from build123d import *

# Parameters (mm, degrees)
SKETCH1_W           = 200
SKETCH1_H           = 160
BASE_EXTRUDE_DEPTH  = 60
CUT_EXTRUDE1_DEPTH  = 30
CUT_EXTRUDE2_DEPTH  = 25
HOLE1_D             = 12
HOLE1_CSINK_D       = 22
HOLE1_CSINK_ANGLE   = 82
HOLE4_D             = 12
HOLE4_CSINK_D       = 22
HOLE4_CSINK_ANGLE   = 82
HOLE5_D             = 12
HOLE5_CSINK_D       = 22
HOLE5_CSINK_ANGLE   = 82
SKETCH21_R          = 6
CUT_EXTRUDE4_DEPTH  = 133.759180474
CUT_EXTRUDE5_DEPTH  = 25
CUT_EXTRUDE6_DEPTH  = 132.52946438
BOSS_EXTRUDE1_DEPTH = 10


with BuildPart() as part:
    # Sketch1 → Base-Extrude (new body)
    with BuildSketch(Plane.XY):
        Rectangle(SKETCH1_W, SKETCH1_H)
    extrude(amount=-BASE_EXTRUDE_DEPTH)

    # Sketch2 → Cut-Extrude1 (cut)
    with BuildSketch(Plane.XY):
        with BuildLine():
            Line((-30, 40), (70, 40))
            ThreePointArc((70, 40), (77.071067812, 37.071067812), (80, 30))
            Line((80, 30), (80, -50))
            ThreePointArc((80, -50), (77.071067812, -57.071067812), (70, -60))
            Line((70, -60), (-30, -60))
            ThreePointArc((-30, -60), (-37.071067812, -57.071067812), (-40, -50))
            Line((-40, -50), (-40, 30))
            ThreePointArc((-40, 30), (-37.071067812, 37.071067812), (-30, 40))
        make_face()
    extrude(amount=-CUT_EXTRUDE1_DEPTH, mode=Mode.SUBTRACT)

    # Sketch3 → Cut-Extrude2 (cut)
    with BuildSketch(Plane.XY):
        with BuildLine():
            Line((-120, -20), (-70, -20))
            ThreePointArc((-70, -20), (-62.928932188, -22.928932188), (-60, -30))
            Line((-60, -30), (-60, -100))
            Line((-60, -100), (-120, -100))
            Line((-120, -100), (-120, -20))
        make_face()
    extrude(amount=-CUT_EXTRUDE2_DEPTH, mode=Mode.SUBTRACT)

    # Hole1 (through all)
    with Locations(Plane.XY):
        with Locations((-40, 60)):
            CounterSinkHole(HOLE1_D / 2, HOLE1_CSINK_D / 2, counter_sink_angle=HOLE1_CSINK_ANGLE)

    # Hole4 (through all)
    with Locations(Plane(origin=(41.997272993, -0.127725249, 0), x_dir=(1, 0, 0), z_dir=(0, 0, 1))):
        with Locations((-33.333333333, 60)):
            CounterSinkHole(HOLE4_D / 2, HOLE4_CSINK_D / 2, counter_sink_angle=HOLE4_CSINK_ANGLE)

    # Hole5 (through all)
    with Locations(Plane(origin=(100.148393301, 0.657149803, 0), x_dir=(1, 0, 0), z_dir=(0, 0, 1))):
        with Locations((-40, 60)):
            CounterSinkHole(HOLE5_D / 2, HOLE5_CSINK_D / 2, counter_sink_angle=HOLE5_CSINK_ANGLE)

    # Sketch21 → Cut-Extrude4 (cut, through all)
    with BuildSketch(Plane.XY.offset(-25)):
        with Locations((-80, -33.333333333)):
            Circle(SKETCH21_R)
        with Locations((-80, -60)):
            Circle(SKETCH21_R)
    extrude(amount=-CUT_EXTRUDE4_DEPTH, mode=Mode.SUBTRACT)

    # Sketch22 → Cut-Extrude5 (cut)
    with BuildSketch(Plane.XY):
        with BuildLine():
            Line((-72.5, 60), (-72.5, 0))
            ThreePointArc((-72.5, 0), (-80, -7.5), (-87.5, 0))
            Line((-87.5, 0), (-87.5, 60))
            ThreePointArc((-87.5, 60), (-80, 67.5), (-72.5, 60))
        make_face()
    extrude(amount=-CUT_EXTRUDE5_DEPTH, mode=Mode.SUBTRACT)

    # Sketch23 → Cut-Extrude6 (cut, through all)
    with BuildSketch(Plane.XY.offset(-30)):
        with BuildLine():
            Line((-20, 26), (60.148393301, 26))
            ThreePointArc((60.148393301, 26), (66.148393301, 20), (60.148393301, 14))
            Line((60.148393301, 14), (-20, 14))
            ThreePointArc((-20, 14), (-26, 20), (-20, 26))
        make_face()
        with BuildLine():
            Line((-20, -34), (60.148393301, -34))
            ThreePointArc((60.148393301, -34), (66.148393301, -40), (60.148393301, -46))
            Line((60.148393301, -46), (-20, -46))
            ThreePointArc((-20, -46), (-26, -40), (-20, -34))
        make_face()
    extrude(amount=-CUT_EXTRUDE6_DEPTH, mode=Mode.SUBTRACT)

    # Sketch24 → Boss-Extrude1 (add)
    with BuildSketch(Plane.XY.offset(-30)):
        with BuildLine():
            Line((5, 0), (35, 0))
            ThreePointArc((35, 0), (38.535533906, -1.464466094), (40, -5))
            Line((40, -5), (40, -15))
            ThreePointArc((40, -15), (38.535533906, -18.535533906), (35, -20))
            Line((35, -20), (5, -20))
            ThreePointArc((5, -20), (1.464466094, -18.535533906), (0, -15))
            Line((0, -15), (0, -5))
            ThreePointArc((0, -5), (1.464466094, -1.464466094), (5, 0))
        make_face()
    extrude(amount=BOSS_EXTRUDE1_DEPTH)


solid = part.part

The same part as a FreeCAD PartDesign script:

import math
import FreeCAD as App
import Part
import Sketcher

doc = App.newDocument("Part")
body = doc.addObject("PartDesign::Body", "Body")

# Sketch on XY plane
sketch1 = doc.addObject("Sketcher::SketchObject", "Sketch")
body.addObject(sketch1)
sketch1.AttachmentSupport = (doc.XY_Plane, [""])
sketch1.MapMode = "FlatFace"
sketch1.addGeometry([
    Part.LineSegment(App.Vector(-100, 80, 0), App.Vector(-100, -80, 0)),
    Part.LineSegment(App.Vector(-100, -80, 0), App.Vector(100, -80, 0)),
    Part.LineSegment(App.Vector(100, -80, 0), App.Vector(100, 80, 0)),
    Part.LineSegment(App.Vector(100, 80, 0), App.Vector(-100, 80, 0)),
], False)
sketch1.addConstraint([
    Sketcher.Constraint("Coincident", 0, 2, 1, 1),
    Sketcher.Constraint("Coincident", 1, 2, 2, 1),
    Sketcher.Constraint("Coincident", 2, 2, 3, 1),
    Sketcher.Constraint("Coincident", 3, 2, 0, 1),
    Sketcher.Constraint("Vertical", 0),
    Sketcher.Constraint("Horizontal", 1),
    Sketcher.Constraint("Vertical", 2),
    Sketcher.Constraint("Horizontal", 3),
    Sketcher.Constraint("Symmetric", 0, 2, 2, 2, -1, 1),
    Sketcher.Constraint("DistanceX", 1, 1, 1, 2, 200.0),
    Sketcher.Constraint("DistanceY", 0, 2, 0, 1, 160.0),
])
pad1 = doc.addObject("PartDesign::Pad", "Pad")
body.addObject(pad1)
pad1.Profile = sketch1
pad1.Length = 60
pad1.Reversed = True

# Sketch on XY plane
sketch2 = doc.addObject("Sketcher::SketchObject", "Sketch001")
body.addObject(sketch2)
sketch2.AttachmentSupport = (doc.XY_Plane, [""])
sketch2.MapMode = "FlatFace"
sketch2.addGeometry([
    Part.LineSegment(App.Vector(70, 40, 0), App.Vector(-30, 40, 0)),  # 0
    Part.ArcOfCircle(Part.Circle(App.Vector(-30, 30, 0), App.Vector(0, 0, 1), 10), math.radians(90), math.radians(180)),  # 1
    Part.LineSegment(App.Vector(-40, 30, 0), App.Vector(-40, -50, 0)),  # 2
    Part.ArcOfCircle(Part.Circle(App.Vector(-30, -50, 0), App.Vector(0, 0, 1), 10), math.radians(180), math.radians(270)),  # 3
    Part.LineSegment(App.Vector(-30, -60, 0), App.Vector(70, -60, 0)),  # 4
    Part.ArcOfCircle(Part.Circle(App.Vector(70, -50, 0), App.Vector(0, 0, 1), 10), math.radians(-90), math.radians(0)),  # 5
    Part.LineSegment(App.Vector(80, -50, 0), App.Vector(80, 30, 0)),  # 6
    Part.ArcOfCircle(Part.Circle(App.Vector(70, 30, 0), App.Vector(0, 0, 1), 10), math.radians(0), math.radians(90)),  # 7
], False)
sketch2.addConstraint([
    Sketcher.Constraint("Tangent", 0, 2, 1, 1),
    Sketcher.Constraint("Tangent", 1, 2, 2, 1),
    Sketcher.Constraint("Tangent", 2, 2, 3, 1),
    Sketcher.Constraint("Tangent", 3, 2, 4, 1),
    Sketcher.Constraint("Tangent", 4, 2, 5, 1),
    Sketcher.Constraint("Tangent", 5, 2, 6, 1),
    Sketcher.Constraint("Tangent", 6, 2, 7, 1),
    Sketcher.Constraint("Tangent", 7, 2, 0, 1),
    Sketcher.Constraint("Horizontal", 0),
    Sketcher.Constraint("Vertical", 2),
    Sketcher.Constraint("Horizontal", 4),
    Sketcher.Constraint("Vertical", 6),
    Sketcher.Constraint("Equal", 1, 3),
    Sketcher.Constraint("Equal", 3, 5),
    Sketcher.Constraint("Equal", 5, 7),
    Sketcher.Constraint("Radius", 1, 10.0),
    Sketcher.Constraint("DistanceX", 0, 2, 0, 1, 100.0),
    Sketcher.Constraint("DistanceY", 2, 2, 2, 1, 80.0),
    Sketcher.Constraint("DistanceX", 1, 3, -1, 1, 30.0),
    Sketcher.Constraint("DistanceY", -1, 1, 1, 3, 30.0),
])
pocket1 = doc.addObject("PartDesign::Pocket", "Pocket")
body.addObject(pocket1)
pocket1.Profile = sketch2
pocket1.Length = 30

# Sketch on XY plane
sketch3 = doc.addObject("Sketcher::SketchObject", "Sketch002")
body.addObject(sketch3)
sketch3.AttachmentSupport = (doc.XY_Plane, [""])
sketch3.MapMode = "FlatFace"
sketch3.addGeometry([
    Part.LineSegment(App.Vector(-70, -20, 0), App.Vector(-120, -20, 0)),  # 0
    Part.LineSegment(App.Vector(-120, -20, 0), App.Vector(-120, -100, 0)),  # 1
    Part.LineSegment(App.Vector(-120, -100, 0), App.Vector(-60, -100, 0)),  # 2
    Part.LineSegment(App.Vector(-60, -100, 0), App.Vector(-60, -30, 0)),  # 3
    Part.ArcOfCircle(Part.Circle(App.Vector(-70, -30, 0), App.Vector(0, 0, 1), 10), math.radians(0), math.radians(90)),  # 4
], False)
sketch3.addConstraint([
    Sketcher.Constraint("Coincident", 0, 2, 1, 1),
    Sketcher.Constraint("Coincident", 1, 2, 2, 1),
    Sketcher.Constraint("Coincident", 2, 2, 3, 1),
    Sketcher.Constraint("Tangent", 3, 2, 4, 1),
    Sketcher.Constraint("Tangent", 4, 2, 0, 1),
    Sketcher.Constraint("Horizontal", 0),
    Sketcher.Constraint("Vertical", 1),
    Sketcher.Constraint("Horizontal", 2),
    Sketcher.Constraint("Vertical", 3),
    Sketcher.Constraint("Radius", 4, 10.0),
    Sketcher.Constraint("DistanceX", 0, 2, 0, 1, 50.0),
    Sketcher.Constraint("DistanceY", 1, 2, 1, 1, 80.0),
    Sketcher.Constraint("DistanceX", 4, 3, -1, 1, 70.0),
    Sketcher.Constraint("DistanceY", 4, 3, -1, 1, 30.0),
])
pocket2 = doc.addObject("PartDesign::Pocket", "Pocket001")
body.addObject(pocket2)
pocket2.Profile = sketch3
pocket2.Length = 25

# Sketch on XY plane
sketch4 = doc.addObject("Sketcher::SketchObject", "Sketch003")
body.addObject(sketch4)
sketch4.AttachmentSupport = (doc.XY_Plane, [""])
sketch4.MapMode = "FlatFace"
sketch4.addGeometry(Part.Circle(App.Vector(-40, 60, 0), App.Vector(0, 0, 1), 6), False)
sketch4.addConstraint([
    Sketcher.Constraint("Diameter", 0, 12.0),
    Sketcher.Constraint("DistanceX", 0, 3, -1, 1, 40.0),
    Sketcher.Constraint("DistanceY", -1, 1, 0, 3, 60.0),
])
doc.recompute()
hole = doc.addObject("PartDesign::Hole", "Hole")
body.addObject(hole)
hole.Profile = sketch4
hole.ThreadType = "None"
hole.Diameter = 12
hole.DepthType = "ThroughAll"
hole.HoleCutType = "Countersink"
hole.HoleCutDiameter = 22
hole.HoleCutCountersinkAngle = 82

# Sketch on XY plane
sketch5 = doc.addObject("Sketcher::SketchObject", "Sketch004")
body.addObject(sketch5)
sketch5.AttachmentSupport = (doc.XY_Plane, [""])
sketch5.MapMode = "FlatFace"
sketch5.addGeometry(Part.Circle(App.Vector(8.66394, 59.872275, 0), App.Vector(0, 0, 1), 6), False)
sketch5.addConstraint([
    Sketcher.Constraint("Diameter", 0, 12.0),
    Sketcher.Constraint("DistanceX", -1, 1, 0, 3, 8.66394),
    Sketcher.Constraint("DistanceY", -1, 1, 0, 3, 59.872275),
])
doc.recompute()
hole2 = doc.addObject("PartDesign::Hole", "Hole001")
body.addObject(hole2)
hole2.Profile = sketch5
hole2.ThreadType = "None"
hole2.Diameter = 12
hole2.DepthType = "ThroughAll"
hole2.HoleCutType = "Countersink"
hole2.HoleCutDiameter = 22
hole2.HoleCutCountersinkAngle = 82

# Sketch on XY plane
sketch6 = doc.addObject("Sketcher::SketchObject", "Sketch005")
body.addObject(sketch6)
sketch6.AttachmentSupport = (doc.XY_Plane, [""])
sketch6.MapMode = "FlatFace"
sketch6.addGeometry(Part.Circle(App.Vector(60.148393, 60.65715, 0), App.Vector(0, 0, 1), 6), False)
sketch6.addConstraint([
    Sketcher.Constraint("Diameter", 0, 12.0),
    Sketcher.Constraint("DistanceY", -1, 1, 0, 3, 60.65715),
    Sketcher.Constraint("DistanceX", -1, 1, 0, 3, 60.148393),
])
doc.recompute()
hole3 = doc.addObject("PartDesign::Hole", "Hole002")
body.addObject(hole3)
hole3.Profile = sketch6
hole3.ThreadType = "None"
hole3.Diameter = 12
hole3.DepthType = "ThroughAll"
hole3.HoleCutType = "Countersink"
hole3.HoleCutDiameter = 22
hole3.HoleCutCountersinkAngle = 82

# Sketch on XY plane
sketch7 = doc.addObject("Sketcher::SketchObject", "Sketch006")
body.addObject(sketch7)
sketch7.AttachmentSupport = (doc.XY_Plane, [""])
sketch7.MapMode = "FlatFace"
sketch7.AttachmentOffset = App.Placement(App.Vector(0, 0, -25), App.Rotation())
sketch7.addGeometry([
    Part.Circle(App.Vector(-80, -33.333333, 0), App.Vector(0, 0, 1), 6),
    Part.Circle(App.Vector(-80, -60, 0), App.Vector(0, 0, 1), 6),
], False)
sketch7.addConstraint([
    Sketcher.Constraint("Equal", 0, 1),
    Sketcher.Constraint("Vertical", 0, 3, 1, 3),
    Sketcher.Constraint("Diameter", 0, 12.0),
    Sketcher.Constraint("DistanceX", 0, 3, -1, 1, 80.0),
    Sketcher.Constraint("DistanceY", 1, 3, -1, 1, 60.0),
    Sketcher.Constraint("DistanceY", 0, 3, -1, 1, 33.333333),
])
pocket3 = doc.addObject("PartDesign::Pocket", "Pocket002")
body.addObject(pocket3)
pocket3.Profile = sketch7
pocket3.Type = "ThroughAll"

# Sketch on XY plane
sketch8 = doc.addObject("Sketcher::SketchObject", "Sketch007")
body.addObject(sketch8)
sketch8.AttachmentSupport = (doc.XY_Plane, [""])
sketch8.MapMode = "FlatFace"
sketch8.addGeometry([
    Part.LineSegment(App.Vector(-72.5, 0, 0), App.Vector(-72.5, 60, 0)),
    Part.ArcOfCircle(Part.Circle(App.Vector(-80, 60, 0), App.Vector(0, 0, 1), 7.5), math.radians(0), math.radians(180)),
    Part.LineSegment(App.Vector(-87.5, 60, 0), App.Vector(-87.5, 0, 0)),
    Part.ArcOfCircle(Part.Circle(App.Vector(-80, 0, 0), App.Vector(0, 0, 1), 7.5), math.radians(180), math.radians(360)),
], False)
sketch8.addConstraint([
    Sketcher.Constraint("Tangent", 0, 2, 1, 1),
    Sketcher.Constraint("Tangent", 1, 2, 2, 1),
    Sketcher.Constraint("Tangent", 2, 2, 3, 1),
    Sketcher.Constraint("Tangent", 3, 2, 0, 1),
    Sketcher.Constraint("Vertical", 0),
    Sketcher.Constraint("Vertical", 2),
    Sketcher.Constraint("PointOnObject", 3, 3, -1),
    Sketcher.Constraint("Radius", 1, 7.5),
    Sketcher.Constraint("DistanceY", 0, 1, 0, 2, 60.0),
    Sketcher.Constraint("DistanceX", 1, 3, -1, 1, 80.0),
])
pocket4 = doc.addObject("PartDesign::Pocket", "Pocket003")
body.addObject(pocket4)
pocket4.Profile = sketch8
pocket4.Length = 25

# Sketch on XY plane
sketch9 = doc.addObject("Sketcher::SketchObject", "Sketch008")
body.addObject(sketch9)
sketch9.AttachmentSupport = (doc.XY_Plane, [""])
sketch9.MapMode = "FlatFace"
sketch9.AttachmentOffset = App.Placement(App.Vector(0, 0, -30), App.Rotation())
sketch9.addGeometry([
    Part.LineSegment(App.Vector(60.148393, 26, 0), App.Vector(-20, 26, 0)),  # 0
    Part.ArcOfCircle(Part.Circle(App.Vector(-20, 20, 0), App.Vector(0, 0, 1), 6), math.radians(90), math.radians(270)),  # 1
    Part.LineSegment(App.Vector(-20, 14, 0), App.Vector(60.148393, 14, 0)),  # 2
    Part.ArcOfCircle(Part.Circle(App.Vector(60.148393, 20, 0), App.Vector(0, 0, 1), 6), math.radians(-90), math.radians(90)),  # 3
    Part.LineSegment(App.Vector(60.148393, -34, 0), App.Vector(-20, -34, 0)),  # 4
    Part.ArcOfCircle(Part.Circle(App.Vector(-20, -40, 0), App.Vector(0, 0, 1), 6), math.radians(90), math.radians(270)),  # 5
    Part.LineSegment(App.Vector(-20, -46, 0), App.Vector(60.148393, -46, 0)),  # 6
    Part.ArcOfCircle(Part.Circle(App.Vector(60.148393, -40, 0), App.Vector(0, 0, 1), 6), math.radians(-90), math.radians(90)),  # 7
], False)
sketch9.addConstraint([
    Sketcher.Constraint("Tangent", 0, 2, 1, 1),
    Sketcher.Constraint("Tangent", 1, 2, 2, 1),
    Sketcher.Constraint("Tangent", 2, 2, 3, 1),
    Sketcher.Constraint("Tangent", 3, 2, 0, 1),
    Sketcher.Constraint("Tangent", 4, 2, 5, 1),
    Sketcher.Constraint("Tangent", 5, 2, 6, 1),
    Sketcher.Constraint("Tangent", 6, 2, 7, 1),
    Sketcher.Constraint("Tangent", 7, 2, 4, 1),
    Sketcher.Constraint("Horizontal", 0),
    Sketcher.Constraint("Horizontal", 2),
    Sketcher.Constraint("Horizontal", 4),
    Sketcher.Constraint("Horizontal", 6),
    Sketcher.Constraint("Equal", 3, 5),
    Sketcher.Constraint("Vertical", 1, 3, 5, 3),
    Sketcher.Constraint("Vertical", 3, 3, 7, 3),
    Sketcher.Constraint("Radius", 1, 6.0),
    Sketcher.Constraint("DistanceX", 1, 3, -1, 1, 20.0),
    Sketcher.Constraint("DistanceY", -1, 1, 1, 3, 20.0),
    Sketcher.Constraint("DistanceY", 5, 3, -1, 1, 40.0),
    Sketcher.Constraint("DistanceX", 0, 2, 0, 1, 80.148393),
])
pocket5 = doc.addObject("PartDesign::Pocket", "Pocket004")
body.addObject(pocket5)
pocket5.Profile = sketch9
pocket5.Type = "ThroughAll"

# Sketch on XY plane
sketch10 = doc.addObject("Sketcher::SketchObject", "Sketch009")
body.addObject(sketch10)
sketch10.AttachmentSupport = (doc.XY_Plane, [""])
sketch10.MapMode = "FlatFace"
sketch10.AttachmentOffset = App.Placement(App.Vector(0, 0, -30), App.Rotation())
sketch10.addGeometry([
    Part.LineSegment(App.Vector(35, 0, 0), App.Vector(5, 0, 0)),  # 0
    Part.ArcOfCircle(Part.Circle(App.Vector(5, -5, 0), App.Vector(0, 0, 1), 5), math.radians(90), math.radians(180)),  # 1
    Part.LineSegment(App.Vector(0, -5, 0), App.Vector(0, -15, 0)),  # 2
    Part.ArcOfCircle(Part.Circle(App.Vector(5, -15, 0), App.Vector(0, 0, 1), 5), math.radians(180), math.radians(270)),  # 3
    Part.LineSegment(App.Vector(5, -20, 0), App.Vector(35, -20, 0)),  # 4
    Part.ArcOfCircle(Part.Circle(App.Vector(35, -15, 0), App.Vector(0, 0, 1), 5), math.radians(-90), math.radians(0)),  # 5
    Part.LineSegment(App.Vector(40, -15, 0), App.Vector(40, -5, 0)),  # 6
    Part.ArcOfCircle(Part.Circle(App.Vector(35, -5, 0), App.Vector(0, 0, 1), 5), math.radians(0), math.radians(90)),  # 7
], False)
sketch10.addConstraint([
    Sketcher.Constraint("Tangent", 0, 2, 1, 1),
    Sketcher.Constraint("Tangent", 1, 2, 2, 1),
    Sketcher.Constraint("Tangent", 2, 2, 3, 1),
    Sketcher.Constraint("Tangent", 3, 2, 4, 1),
    Sketcher.Constraint("Tangent", 4, 2, 5, 1),
    Sketcher.Constraint("Tangent", 5, 2, 6, 1),
    Sketcher.Constraint("Tangent", 6, 2, 7, 1),
    Sketcher.Constraint("Tangent", 7, 2, 0, 1),
    Sketcher.Constraint("Horizontal", 0),
    Sketcher.Constraint("Vertical", 2),
    Sketcher.Constraint("Horizontal", 4),
    Sketcher.Constraint("Vertical", 6),
    Sketcher.Constraint("Equal", 1, 3),
    Sketcher.Constraint("Equal", 3, 5),
    Sketcher.Constraint("Equal", 5, 7),
    Sketcher.Constraint("PointOnObject", 0, 2, -1),
    Sketcher.Constraint("PointOnObject", 1, 2, -2),
    Sketcher.Constraint("Radius", 1, 5.0),
    Sketcher.Constraint("DistanceX", 0, 2, 0, 1, 30.0),
    Sketcher.Constraint("DistanceY", 2, 2, 2, 1, 10.0),
])
pad2 = doc.addObject("PartDesign::Pad", "Pad001")
body.addObject(pad2)
pad2.Profile = sketch10
pad2.Length = 10

doc.recompute()
